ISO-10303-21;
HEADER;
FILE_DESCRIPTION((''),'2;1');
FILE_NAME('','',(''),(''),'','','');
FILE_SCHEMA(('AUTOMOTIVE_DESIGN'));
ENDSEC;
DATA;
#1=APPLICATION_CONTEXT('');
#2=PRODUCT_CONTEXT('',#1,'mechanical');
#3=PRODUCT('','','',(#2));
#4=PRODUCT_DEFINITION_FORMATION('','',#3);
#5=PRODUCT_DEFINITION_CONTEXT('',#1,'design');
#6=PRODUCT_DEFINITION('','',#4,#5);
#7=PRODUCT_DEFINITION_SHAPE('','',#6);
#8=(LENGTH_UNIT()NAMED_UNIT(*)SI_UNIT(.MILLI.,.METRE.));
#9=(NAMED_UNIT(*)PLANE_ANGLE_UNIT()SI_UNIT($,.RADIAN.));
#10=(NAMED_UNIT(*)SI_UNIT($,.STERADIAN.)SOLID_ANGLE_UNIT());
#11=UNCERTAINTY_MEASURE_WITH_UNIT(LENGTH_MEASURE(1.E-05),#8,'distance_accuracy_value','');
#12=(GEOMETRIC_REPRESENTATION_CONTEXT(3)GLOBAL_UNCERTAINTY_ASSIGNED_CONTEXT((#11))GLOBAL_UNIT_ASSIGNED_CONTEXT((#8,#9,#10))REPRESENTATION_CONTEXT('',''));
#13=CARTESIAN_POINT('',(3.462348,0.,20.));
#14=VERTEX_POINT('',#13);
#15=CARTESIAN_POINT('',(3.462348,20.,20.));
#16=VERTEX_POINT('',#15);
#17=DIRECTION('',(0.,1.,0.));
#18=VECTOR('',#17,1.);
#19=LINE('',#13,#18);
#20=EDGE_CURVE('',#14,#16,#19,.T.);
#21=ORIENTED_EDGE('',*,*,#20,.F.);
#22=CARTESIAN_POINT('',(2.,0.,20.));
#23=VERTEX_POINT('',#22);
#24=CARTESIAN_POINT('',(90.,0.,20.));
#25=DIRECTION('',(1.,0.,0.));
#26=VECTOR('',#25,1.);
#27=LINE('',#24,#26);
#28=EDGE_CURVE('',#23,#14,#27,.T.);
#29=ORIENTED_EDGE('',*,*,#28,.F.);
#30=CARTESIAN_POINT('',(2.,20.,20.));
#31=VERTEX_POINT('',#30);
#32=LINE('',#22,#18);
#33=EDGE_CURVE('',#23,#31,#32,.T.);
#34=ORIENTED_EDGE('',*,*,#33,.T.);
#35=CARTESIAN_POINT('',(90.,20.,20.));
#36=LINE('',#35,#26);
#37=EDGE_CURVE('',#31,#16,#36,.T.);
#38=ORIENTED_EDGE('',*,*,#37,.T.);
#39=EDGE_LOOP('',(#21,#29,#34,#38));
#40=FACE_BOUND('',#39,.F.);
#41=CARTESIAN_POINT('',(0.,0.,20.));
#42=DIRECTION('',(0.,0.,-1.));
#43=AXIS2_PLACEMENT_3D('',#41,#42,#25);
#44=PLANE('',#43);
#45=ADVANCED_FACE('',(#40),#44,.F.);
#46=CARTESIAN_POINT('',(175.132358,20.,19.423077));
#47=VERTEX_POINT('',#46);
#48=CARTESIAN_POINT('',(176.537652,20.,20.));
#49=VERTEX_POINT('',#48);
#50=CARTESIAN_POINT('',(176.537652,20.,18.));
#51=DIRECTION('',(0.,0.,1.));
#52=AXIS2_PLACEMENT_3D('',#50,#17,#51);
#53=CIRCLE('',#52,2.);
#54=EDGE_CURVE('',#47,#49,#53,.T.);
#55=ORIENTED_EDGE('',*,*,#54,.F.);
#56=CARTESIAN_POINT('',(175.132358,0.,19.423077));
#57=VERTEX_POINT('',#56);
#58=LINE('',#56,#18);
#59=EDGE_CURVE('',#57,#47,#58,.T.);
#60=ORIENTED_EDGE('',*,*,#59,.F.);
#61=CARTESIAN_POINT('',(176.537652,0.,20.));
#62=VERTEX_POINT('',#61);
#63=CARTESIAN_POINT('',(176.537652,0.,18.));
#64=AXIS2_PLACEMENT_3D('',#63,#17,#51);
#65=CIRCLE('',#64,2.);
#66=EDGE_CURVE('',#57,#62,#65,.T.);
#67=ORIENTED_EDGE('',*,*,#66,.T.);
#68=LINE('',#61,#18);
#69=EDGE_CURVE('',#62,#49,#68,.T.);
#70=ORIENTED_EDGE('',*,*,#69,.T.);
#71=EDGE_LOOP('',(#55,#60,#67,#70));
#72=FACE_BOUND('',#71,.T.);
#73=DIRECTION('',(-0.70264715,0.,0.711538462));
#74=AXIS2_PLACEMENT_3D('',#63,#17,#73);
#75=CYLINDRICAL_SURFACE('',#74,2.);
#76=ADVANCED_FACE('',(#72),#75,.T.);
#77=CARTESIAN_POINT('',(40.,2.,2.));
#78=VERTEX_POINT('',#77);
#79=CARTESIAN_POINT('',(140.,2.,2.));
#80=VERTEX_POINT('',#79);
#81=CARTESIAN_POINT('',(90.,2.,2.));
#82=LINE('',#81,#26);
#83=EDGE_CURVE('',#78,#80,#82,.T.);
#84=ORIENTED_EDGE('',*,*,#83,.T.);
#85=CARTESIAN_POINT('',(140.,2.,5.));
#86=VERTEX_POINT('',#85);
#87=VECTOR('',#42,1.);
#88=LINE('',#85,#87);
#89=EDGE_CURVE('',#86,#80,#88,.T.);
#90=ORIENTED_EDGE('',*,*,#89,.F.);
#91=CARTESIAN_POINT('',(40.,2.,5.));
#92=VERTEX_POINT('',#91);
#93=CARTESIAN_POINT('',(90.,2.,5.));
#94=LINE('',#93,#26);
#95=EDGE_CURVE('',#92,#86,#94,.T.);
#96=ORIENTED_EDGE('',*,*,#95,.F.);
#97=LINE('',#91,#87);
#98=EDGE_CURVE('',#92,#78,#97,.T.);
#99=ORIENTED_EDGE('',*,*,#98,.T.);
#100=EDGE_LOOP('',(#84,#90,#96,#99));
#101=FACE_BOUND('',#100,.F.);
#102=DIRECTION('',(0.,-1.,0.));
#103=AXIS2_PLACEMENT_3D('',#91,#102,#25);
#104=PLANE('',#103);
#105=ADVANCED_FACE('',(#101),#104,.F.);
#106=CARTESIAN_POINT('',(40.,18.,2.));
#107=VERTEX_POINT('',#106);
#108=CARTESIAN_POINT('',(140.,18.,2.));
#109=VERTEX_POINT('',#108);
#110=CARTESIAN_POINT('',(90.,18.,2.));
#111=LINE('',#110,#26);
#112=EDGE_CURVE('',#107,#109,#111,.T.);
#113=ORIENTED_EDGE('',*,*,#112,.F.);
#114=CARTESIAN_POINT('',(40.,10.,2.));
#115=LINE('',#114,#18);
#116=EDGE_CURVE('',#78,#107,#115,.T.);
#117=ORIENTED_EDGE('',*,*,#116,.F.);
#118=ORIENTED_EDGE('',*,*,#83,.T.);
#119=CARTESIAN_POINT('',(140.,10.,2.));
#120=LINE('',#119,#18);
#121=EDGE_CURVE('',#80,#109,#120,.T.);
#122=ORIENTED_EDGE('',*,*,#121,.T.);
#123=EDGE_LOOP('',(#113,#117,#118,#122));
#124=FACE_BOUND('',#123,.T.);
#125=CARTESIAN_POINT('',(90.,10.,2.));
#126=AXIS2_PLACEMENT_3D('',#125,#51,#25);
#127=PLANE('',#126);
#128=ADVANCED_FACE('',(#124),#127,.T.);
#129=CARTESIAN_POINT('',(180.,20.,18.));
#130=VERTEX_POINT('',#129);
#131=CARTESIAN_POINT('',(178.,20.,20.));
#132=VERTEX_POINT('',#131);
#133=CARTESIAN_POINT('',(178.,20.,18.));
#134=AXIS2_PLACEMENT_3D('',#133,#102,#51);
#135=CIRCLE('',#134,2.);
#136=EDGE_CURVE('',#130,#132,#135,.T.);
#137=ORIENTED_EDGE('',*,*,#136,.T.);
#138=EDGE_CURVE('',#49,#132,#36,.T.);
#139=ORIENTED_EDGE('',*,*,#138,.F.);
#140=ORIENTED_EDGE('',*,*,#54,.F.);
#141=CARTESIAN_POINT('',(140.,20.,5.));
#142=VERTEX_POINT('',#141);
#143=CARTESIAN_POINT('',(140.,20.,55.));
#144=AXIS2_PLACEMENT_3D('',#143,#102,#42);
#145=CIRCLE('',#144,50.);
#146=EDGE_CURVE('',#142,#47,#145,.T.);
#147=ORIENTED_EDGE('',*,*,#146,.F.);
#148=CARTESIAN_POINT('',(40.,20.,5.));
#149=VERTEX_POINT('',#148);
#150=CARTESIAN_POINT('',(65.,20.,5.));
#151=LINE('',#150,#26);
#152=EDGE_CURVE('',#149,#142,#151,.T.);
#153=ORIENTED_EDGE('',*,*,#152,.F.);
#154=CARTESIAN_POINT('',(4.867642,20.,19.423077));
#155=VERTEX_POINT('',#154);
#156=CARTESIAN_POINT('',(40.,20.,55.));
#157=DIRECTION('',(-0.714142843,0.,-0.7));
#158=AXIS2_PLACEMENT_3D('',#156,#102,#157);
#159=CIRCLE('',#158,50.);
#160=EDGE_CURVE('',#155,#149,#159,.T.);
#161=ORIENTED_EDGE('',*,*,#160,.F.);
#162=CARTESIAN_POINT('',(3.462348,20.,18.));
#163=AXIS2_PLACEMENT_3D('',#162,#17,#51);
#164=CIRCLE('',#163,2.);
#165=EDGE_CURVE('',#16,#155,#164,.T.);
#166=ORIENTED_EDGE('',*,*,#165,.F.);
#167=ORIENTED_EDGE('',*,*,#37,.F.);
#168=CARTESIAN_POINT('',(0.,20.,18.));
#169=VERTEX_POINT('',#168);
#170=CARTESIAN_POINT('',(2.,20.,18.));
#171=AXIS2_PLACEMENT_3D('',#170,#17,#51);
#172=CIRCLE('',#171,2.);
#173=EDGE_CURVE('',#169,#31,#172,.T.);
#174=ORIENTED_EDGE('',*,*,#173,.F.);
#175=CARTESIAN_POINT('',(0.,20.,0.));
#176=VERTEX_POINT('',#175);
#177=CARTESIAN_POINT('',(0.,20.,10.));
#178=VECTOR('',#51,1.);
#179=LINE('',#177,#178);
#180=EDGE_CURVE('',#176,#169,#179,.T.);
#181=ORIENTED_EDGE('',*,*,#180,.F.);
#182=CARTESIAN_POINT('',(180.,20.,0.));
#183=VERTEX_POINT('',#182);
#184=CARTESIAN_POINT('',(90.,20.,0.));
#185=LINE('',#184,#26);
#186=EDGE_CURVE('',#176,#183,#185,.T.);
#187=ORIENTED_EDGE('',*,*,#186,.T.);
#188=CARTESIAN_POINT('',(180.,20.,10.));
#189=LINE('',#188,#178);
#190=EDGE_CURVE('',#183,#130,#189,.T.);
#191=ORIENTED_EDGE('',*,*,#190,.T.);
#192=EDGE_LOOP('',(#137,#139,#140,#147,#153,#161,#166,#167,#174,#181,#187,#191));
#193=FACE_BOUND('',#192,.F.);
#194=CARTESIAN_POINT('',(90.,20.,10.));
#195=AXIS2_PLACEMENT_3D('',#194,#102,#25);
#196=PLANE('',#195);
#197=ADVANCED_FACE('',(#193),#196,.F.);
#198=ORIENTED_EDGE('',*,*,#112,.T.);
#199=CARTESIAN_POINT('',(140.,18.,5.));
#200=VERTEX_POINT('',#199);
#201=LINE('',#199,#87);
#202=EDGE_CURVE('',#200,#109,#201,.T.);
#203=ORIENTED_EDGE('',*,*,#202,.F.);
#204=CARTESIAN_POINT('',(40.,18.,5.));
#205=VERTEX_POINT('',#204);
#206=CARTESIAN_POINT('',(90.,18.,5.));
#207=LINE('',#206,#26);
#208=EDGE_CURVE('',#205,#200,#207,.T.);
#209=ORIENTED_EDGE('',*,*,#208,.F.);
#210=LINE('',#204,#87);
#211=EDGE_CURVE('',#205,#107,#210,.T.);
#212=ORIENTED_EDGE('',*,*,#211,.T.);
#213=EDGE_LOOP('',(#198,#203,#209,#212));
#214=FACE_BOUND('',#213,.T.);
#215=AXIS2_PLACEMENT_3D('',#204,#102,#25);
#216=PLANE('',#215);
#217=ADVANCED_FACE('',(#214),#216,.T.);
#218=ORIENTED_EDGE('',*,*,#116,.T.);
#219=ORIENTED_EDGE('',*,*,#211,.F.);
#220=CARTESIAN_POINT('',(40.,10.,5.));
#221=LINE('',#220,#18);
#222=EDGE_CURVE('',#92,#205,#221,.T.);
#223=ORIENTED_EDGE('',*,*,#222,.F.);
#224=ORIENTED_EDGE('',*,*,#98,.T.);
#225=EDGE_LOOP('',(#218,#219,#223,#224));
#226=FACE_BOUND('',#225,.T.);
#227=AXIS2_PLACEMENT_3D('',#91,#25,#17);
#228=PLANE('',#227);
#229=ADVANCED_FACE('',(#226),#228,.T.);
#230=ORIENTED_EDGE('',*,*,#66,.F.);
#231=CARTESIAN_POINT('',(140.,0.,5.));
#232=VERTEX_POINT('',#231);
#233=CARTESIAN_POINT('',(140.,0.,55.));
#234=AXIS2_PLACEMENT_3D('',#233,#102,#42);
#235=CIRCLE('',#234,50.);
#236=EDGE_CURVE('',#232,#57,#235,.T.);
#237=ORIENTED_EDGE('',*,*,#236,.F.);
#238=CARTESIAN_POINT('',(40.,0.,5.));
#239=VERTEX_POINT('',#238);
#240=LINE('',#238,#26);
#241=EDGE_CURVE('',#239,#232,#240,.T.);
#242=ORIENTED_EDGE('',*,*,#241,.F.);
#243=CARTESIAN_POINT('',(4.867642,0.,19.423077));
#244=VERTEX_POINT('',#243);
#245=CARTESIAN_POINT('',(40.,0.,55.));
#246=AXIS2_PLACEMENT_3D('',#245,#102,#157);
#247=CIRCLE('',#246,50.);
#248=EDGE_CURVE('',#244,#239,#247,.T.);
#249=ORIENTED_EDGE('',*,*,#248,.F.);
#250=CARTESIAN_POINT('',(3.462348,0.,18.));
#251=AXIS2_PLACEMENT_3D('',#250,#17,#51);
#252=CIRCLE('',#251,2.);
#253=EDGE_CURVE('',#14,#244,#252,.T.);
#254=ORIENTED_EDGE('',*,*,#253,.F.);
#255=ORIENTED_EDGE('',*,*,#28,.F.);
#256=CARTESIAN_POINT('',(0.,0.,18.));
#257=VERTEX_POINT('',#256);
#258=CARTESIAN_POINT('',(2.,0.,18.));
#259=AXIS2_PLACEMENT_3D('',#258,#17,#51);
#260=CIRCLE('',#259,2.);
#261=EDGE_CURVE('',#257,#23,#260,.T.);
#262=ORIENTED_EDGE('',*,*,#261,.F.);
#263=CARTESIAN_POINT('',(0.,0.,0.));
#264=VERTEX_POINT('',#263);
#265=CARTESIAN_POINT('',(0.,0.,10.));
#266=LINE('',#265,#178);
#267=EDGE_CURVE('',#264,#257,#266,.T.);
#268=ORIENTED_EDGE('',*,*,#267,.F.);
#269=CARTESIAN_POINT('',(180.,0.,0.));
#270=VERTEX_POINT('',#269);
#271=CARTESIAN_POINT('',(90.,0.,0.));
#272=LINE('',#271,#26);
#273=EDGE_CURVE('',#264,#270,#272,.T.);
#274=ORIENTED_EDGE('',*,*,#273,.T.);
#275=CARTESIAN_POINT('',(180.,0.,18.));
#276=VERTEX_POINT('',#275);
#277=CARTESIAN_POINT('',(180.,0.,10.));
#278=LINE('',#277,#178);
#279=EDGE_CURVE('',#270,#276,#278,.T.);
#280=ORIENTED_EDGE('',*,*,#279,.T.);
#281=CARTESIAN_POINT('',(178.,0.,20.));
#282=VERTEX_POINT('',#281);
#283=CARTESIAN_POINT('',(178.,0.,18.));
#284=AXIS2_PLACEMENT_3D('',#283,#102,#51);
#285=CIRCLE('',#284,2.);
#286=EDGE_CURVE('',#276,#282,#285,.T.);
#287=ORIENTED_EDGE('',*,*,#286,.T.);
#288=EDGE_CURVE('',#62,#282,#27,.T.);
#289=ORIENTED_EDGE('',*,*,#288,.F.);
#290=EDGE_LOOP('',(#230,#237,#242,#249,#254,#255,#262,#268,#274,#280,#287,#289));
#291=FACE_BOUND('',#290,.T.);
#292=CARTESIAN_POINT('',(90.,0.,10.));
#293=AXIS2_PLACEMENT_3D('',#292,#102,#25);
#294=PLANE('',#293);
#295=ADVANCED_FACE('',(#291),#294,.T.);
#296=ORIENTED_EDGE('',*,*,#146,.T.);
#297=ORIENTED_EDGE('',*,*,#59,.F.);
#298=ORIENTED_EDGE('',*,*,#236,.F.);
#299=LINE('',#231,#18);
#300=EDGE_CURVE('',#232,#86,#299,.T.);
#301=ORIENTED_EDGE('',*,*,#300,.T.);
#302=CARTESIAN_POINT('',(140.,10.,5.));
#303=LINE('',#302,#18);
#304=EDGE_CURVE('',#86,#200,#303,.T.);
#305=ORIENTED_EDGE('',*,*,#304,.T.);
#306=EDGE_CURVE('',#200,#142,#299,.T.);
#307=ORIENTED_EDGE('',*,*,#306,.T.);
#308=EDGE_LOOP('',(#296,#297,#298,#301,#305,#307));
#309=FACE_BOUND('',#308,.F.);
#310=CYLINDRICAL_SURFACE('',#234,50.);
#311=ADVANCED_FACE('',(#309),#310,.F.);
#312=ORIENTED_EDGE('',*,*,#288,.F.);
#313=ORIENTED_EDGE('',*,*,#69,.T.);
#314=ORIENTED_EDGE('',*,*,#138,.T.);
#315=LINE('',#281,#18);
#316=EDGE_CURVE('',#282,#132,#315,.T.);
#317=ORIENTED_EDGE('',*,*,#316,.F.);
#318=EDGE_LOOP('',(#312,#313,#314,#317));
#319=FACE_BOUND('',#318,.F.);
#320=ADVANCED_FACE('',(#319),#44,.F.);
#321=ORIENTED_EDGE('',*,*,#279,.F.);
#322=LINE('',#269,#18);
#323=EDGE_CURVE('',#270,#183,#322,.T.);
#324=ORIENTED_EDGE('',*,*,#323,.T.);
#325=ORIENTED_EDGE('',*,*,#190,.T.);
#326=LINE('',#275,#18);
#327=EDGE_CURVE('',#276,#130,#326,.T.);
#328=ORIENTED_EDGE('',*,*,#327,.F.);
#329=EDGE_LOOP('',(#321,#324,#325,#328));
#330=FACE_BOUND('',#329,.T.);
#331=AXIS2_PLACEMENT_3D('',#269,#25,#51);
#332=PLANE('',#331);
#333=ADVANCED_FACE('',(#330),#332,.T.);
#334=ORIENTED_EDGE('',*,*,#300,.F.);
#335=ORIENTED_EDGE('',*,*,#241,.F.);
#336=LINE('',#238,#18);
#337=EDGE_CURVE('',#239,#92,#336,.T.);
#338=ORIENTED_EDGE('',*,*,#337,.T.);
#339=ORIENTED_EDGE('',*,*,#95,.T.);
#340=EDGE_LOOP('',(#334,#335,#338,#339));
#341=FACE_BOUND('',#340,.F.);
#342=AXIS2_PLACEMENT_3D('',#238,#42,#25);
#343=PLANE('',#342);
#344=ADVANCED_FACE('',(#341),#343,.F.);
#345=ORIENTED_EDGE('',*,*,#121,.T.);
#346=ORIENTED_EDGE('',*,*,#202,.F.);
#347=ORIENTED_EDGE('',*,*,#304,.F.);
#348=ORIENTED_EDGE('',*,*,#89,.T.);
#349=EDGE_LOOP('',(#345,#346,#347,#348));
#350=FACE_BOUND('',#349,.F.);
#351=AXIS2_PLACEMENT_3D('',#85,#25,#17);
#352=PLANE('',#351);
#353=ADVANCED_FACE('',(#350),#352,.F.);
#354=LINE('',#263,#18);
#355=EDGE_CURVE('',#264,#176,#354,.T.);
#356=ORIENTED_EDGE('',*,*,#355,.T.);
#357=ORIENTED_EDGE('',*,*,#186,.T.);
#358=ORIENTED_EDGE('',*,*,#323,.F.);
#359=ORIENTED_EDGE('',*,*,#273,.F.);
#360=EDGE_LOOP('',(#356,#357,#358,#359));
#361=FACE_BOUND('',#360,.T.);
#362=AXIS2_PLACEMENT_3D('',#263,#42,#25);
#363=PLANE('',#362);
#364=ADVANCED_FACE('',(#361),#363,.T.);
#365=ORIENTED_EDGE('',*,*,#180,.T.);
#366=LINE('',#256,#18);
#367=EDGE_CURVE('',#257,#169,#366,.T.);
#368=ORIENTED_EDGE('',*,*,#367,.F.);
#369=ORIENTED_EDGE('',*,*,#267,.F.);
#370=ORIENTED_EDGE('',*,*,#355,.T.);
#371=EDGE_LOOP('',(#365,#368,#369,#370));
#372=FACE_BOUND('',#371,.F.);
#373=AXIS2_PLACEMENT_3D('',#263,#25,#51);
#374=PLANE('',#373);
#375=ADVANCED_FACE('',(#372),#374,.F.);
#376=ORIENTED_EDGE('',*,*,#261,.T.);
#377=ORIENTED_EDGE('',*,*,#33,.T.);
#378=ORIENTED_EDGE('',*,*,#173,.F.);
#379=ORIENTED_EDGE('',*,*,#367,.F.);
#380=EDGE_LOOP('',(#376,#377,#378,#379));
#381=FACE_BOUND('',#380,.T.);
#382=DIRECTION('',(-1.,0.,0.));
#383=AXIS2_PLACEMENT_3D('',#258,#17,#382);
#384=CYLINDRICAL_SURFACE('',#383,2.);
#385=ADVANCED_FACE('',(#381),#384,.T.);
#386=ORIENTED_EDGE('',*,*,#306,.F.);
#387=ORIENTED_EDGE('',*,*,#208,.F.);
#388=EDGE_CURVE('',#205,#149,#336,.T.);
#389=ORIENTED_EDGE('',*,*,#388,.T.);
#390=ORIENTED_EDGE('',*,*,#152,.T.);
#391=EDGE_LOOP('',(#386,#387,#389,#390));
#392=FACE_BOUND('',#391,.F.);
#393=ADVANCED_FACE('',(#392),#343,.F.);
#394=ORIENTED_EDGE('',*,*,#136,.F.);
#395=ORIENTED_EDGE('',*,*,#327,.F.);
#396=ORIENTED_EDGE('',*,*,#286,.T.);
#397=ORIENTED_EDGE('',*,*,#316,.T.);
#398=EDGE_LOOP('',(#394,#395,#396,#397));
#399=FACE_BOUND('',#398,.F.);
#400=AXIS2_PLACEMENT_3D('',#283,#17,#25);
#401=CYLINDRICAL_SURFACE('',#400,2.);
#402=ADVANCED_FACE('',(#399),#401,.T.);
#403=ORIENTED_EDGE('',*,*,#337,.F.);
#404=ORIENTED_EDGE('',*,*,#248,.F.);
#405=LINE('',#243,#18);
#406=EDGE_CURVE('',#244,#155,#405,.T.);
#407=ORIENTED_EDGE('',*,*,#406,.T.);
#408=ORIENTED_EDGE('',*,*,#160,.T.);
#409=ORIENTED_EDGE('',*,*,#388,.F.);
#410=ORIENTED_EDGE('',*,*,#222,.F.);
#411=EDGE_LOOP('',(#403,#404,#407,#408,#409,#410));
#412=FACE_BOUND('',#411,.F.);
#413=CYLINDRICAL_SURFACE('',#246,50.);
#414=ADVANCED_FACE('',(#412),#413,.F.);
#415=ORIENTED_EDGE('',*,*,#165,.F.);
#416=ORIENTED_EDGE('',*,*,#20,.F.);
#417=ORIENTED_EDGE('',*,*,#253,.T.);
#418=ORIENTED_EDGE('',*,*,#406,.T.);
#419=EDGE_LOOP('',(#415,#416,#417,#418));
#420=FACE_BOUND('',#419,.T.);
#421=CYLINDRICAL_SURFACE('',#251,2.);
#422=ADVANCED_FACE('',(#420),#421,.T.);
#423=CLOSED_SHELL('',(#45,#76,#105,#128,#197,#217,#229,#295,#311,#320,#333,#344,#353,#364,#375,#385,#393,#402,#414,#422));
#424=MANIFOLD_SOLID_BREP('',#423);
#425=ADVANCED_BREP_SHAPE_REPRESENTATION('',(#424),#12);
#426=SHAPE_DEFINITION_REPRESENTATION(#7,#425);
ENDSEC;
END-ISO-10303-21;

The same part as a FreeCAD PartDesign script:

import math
import FreeCAD as App
import Part
import Sketcher

V = App.Vector
Q = App.Units.Quantity


def edges_at(feature, points):
    """Names of the edges that pass closest to the given points."""
    edges = feature.Shape.Edges
    near = lambda p: min(range(len(edges)), key=lambda i: edges[i].distToShape(Part.Vertex(*p))[0])
    return sorted({f"Edge{near(p) + 1}" for p in points})

doc = App.newDocument("Part")
params = doc.addObject("Spreadsheet::Sheet", "Params")
for row, (alias, value) in enumerate([
    ("sketch1_width", "180 mm"),
    ("sketch1_height", "20 mm"),
    ("pad1_length", "20 mm"),
    ("sketch2_radius", "50 mm"),
    ("sketch2_width", "100 mm"),
    ("pocket1_length", "25 mm"),
    ("fillet_radius", "2 mm"),
    ("sketch3_width", "100 mm"),
    ("sketch3_height", "16 mm"),
    ("pocket2_length", "3 mm"),
], start=1):
    params.set(f"A{row}", alias)
    params.set(f"B{row}", "=" + value)
    params.setAlias(f"B{row}", alias)

body = doc.addObject("PartDesign::Body", "Body")

# Sketch on XZ plane
sketch1 = body.newObject("Sketcher::SketchObject", "Sketch")
sketch1.AttachmentSupport = (doc.getObject("XZ_Plane"), [""])
sketch1.MapMode = "FlatFace"
sketch1.addGeometry([
    Part.LineSegment(V(0, 20, 0), V(0, 0, 0)),
    Part.LineSegment(V(0, 0, 0), V(180, 0, 0)),
    Part.LineSegment(V(180, 0, 0), V(180, 20, 0)),
    Part.LineSegment(V(180, 20, 0), V(0, 20, 0)),
], False)
sketch1.addConstraint([
    Sketcher.Constraint("Coincident", 0, 2, 1, 1),
    Sketcher.Constraint("Coincident", 1, 2, 2, 1),
    Sketcher.Constraint("Coincident", 2, 2, 3, 1),
    Sketcher.Constraint("Coincident", 3, 2, 0, 1),
    Sketcher.Constraint("Vertical", 0),
    Sketcher.Constraint("Horizontal", 1),
    Sketcher.Constraint("Vertical", 2),
    Sketcher.Constraint("Horizontal", 3),
    Sketcher.Constraint("Coincident", 0, 2, -1, 1),
    Sketcher.Constraint("DistanceX", 1, 1, 1, 2, Q("180 mm")),
    Sketcher.Constraint("DistanceY", 0, 2, 0, 1, Q("20 mm")),
])
sketch1.setExpression("Constraints[9]", "Params.sketch1_width")
sketch1.setExpression("Constraints[10]", "Params.sketch1_height")
pad1 = body.newObject("PartDesign::Pad", "Pad")
pad1.Profile = sketch1
pad1.setExpression("Length", "Params.pad1_length")
pad1.Reversed = True

# Sketch on XZ plane
sketch2 = body.newObject("Sketcher::SketchObject", "Sketch001")
sketch2.AttachmentSupport = (doc.getObject("XZ_Plane"), [""])
sketch2.MapMode = "FlatFace"
sketch2.addGeometry([
    Part.ArcOfCircle(Part.Circle(V(40, 55, 0), V(0, 0, 1), 50), math.radians(-135.572996), math.radians(-90)),
    Part.LineSegment(V(40, 5, 0), V(140, 5, 0)),
    Part.ArcOfCircle(Part.Circle(V(140, 55, 0), V(0, 0, 1), 50), math.radians(-90), math.radians(-44.427004)),
    Part.LineSegment(V(175.707142, 20, 0), V(4.292858, 20, 0)),
], False)
sketch2.addConstraint([
    Sketcher.Constraint("Tangent", 0, 2, 1, 1),
    Sketcher.Constraint("Tangent", 1, 2, 2, 1),
    Sketcher.Constraint("Coincident", 2, 2, 3, 1),
    Sketcher.Constraint("Coincident", 3, 2, 0, 1),
    Sketcher.Constraint("Horizontal", 1),
    Sketcher.Constraint("Horizontal", 3),
    Sketcher.Constraint("Equal", 0, 2),
    Sketcher.Constraint("Radius", 0, Q("50 mm")),
    Sketcher.Constraint("DistanceX", 1, 1, 1, 2, Q("100 mm")),
    Sketcher.Constraint("DistanceX", -1, 1, 0, 3, Q("40 mm")),
    Sketcher.Constraint("DistanceY", -1, 1, 0, 3, Q("55 mm")),
    Sketcher.Constraint("DistanceY", -1, 1, 2, 2, Q("20 mm")),
])
sketch2.setExpression("Constraints[7]", "Params.sketch2_radius")
sketch2.setExpression("Constraints[8]", "Params.sketch2_width")
pocket1 = body.newObject("PartDesign::Pocket", "Pocket")
pocket1.Profile = sketch2
pocket1.setExpression("Length", "Params.pocket1_length")
doc.recompute()

fillet = body.newObject("PartDesign::Fillet", "Fillet")
fillet.Base = (pocket1, edges_at(pocket1, [
    (0, 10, 20),
    (4.293, 10, 20),
    (175.707, 10, 20),
    (180, 10, 20),
]))
fillet.setExpression("Radius", "Params.fillet_radius")

# Sketch on XY plane
sketch3 = body.newObject("Sketcher::SketchObject", "Sketch002")
sketch3.AttachmentSupport = (doc.getObject("XY_Plane"), [""])
sketch3.MapMode = "FlatFace"
sketch3.AttachmentOffset = App.Placement(V(0, 0, 5), App.Rotation())
sketch3.addGeometry([
    Part.LineSegment(V(40, 18, 0), V(40, 2, 0)),
    Part.LineSegment(V(40, 2, 0), V(140, 2, 0)),
    Part.LineSegment(V(140, 2, 0), V(140, 18, 0)),
    Part.LineSegment(V(140, 18, 0), V(40, 18, 0)),
], False)
sketch3.addConstraint([
    Sketcher.Constraint("Coincident", 0, 2, 1, 1),
    Sketcher.Constraint("Coincident", 1, 2, 2, 1),
    Sketcher.Constraint("Coincident", 2, 2, 3, 1),
    Sketcher.Constraint("Coincident", 3, 2, 0, 1),
    Sketcher.Constraint("Vertical", 0),
    Sketcher.Constraint("Horizontal", 1),
    Sketcher.Constraint("Vertical", 2),
    Sketcher.Constraint("Horizontal", 3),
    Sketcher.Constraint("DistanceX", 1, 1, 1, 2, Q("100 mm")),
    Sketcher.Constraint("DistanceY", 0, 2, 0, 1, Q("16 mm")),
    Sketcher.Constraint("DistanceX", -1, 1, 0, 2, Q("40 mm")),
    Sketcher.Constraint("DistanceY", -1, 1, 0, 2, Q("2 mm")),
])
sketch3.setExpression("Constraints[8]", "Params.sketch3_width")
sketch3.setExpression("Constraints[9]", "Params.sketch3_height")
pocket2 = body.newObject("PartDesign::Pocket", "Pocket001")
pocket2.Profile = sketch3
pocket2.setExpression("Length", "Params.pocket2_length")

doc.recompute()
